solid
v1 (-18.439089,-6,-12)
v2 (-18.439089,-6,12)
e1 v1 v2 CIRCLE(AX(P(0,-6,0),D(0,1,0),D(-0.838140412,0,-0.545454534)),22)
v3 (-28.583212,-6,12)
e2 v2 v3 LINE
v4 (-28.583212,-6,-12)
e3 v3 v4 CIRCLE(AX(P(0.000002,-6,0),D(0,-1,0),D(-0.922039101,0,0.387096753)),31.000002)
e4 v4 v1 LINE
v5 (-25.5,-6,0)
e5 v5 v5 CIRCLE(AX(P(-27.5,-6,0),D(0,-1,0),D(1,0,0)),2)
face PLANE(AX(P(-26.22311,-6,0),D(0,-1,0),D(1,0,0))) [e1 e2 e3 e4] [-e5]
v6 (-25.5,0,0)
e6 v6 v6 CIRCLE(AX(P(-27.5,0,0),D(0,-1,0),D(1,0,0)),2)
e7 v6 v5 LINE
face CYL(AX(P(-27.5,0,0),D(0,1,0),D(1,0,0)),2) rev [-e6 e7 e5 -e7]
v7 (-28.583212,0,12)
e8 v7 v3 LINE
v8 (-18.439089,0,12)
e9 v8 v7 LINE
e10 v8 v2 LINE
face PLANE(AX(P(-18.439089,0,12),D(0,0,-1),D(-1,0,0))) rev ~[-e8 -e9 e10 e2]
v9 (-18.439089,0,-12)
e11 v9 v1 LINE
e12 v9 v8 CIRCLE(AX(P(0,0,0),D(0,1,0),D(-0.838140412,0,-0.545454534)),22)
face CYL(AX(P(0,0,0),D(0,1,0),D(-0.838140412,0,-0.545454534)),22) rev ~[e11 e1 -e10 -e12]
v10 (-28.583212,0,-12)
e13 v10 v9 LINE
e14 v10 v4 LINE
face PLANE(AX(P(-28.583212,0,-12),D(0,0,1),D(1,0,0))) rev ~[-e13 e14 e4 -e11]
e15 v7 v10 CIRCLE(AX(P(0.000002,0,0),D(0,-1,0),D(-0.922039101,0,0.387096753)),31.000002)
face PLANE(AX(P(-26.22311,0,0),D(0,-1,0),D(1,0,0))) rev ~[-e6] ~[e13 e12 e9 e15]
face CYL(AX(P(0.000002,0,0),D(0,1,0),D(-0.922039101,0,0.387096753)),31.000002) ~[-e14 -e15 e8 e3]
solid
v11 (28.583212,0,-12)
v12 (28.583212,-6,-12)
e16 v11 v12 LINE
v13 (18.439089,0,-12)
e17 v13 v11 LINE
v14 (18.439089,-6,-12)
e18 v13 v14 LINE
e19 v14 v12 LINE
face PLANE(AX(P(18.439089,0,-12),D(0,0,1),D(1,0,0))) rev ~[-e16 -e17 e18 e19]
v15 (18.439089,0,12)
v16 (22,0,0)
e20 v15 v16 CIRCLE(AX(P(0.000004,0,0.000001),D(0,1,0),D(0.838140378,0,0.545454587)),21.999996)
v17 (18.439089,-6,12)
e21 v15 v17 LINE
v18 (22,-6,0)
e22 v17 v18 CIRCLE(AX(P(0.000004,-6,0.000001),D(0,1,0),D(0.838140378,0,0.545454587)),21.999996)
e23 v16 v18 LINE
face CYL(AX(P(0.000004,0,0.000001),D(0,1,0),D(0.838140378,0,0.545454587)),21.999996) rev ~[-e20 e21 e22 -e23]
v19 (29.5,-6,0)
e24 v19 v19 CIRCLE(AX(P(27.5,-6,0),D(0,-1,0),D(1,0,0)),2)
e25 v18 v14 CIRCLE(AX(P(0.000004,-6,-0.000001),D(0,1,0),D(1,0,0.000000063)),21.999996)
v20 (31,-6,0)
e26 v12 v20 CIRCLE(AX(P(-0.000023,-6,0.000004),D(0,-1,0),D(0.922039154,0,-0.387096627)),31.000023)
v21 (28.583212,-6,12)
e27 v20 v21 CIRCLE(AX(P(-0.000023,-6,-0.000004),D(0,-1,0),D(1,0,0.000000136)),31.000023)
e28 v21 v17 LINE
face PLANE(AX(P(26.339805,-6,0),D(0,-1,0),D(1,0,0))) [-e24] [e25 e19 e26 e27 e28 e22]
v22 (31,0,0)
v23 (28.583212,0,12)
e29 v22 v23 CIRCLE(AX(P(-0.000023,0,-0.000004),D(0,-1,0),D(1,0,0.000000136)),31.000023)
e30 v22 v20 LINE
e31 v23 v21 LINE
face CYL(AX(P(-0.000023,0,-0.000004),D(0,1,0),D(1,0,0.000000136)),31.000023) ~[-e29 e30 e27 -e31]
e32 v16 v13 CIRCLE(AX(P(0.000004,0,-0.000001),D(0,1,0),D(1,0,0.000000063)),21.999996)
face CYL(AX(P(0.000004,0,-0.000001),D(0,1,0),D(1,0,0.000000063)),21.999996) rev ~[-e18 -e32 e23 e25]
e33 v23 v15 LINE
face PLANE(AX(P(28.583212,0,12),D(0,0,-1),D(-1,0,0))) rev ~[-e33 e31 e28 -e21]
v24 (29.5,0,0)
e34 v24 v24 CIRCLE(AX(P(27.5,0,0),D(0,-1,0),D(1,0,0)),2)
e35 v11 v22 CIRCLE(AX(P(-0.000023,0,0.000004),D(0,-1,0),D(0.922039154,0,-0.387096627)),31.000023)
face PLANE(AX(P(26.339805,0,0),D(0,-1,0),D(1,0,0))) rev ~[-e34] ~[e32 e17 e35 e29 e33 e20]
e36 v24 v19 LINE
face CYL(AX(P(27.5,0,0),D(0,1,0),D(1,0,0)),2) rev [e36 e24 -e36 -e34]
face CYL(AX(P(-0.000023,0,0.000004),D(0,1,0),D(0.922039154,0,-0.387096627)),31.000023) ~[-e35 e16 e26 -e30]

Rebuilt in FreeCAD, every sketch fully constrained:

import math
import FreeCAD as App
import Part
import Sketcher

V = App.Vector

doc = App.newDocument("Part")
params = doc.addObject("Spreadsheet::Sheet", "Params")
for row, (alias, value) in enumerate([
    ("sketch1_diameter", "4 mm"),
    ("sketch1_radius", "31.000002 mm"),
    ("sketch1_radius2", "22 mm"),
    ("pad1_length", "6 mm"),
], start=1):
    params.set(f"A{row}", alias)
    params.set(f"B{row}", "=" + value)
    params.setAlias(f"B{row}", alias)

body = doc.addObject("PartDesign::Body", "Body")
body.AllowCompound = True

# Sketch on XZ plane
sketch1 = body.newObject("Sketcher::SketchObject", "Sketch")
sketch1.AttachmentSupport = (doc.getObject("XZ_Plane"), [""])
sketch1.MapMode = "FlatFace"
sketch1.addGeometry(Part.ArcOfCircle(Part.Circle(V(0, 0, 0), V(0, 0, 1), 31), math.radians(157), math.radians(203)), False)
sketch1.addGeometry(Part.LineSegment(V(-28.6, -12, 0), V(-18.4, -12, 0)), False)
sketch1.addGeometry(Part.ArcOfCircle(Part.Circle(V(0, 0, 0), V(0, 0, 1), 22), math.radians(147), math.radians(213)), False)
sketch1.addGeometry(Part.LineSegment(V(-18.4, 12, 0), V(-28.6, 12, 0)), False)
sketch1.addGeometry(Part.Circle(V(-27.5, 0, 0), V(0, 0, 1), 2), False)
sketch1.addGeometry(Part.ArcOfCircle(Part.Circle(V(0, 0, 0), V(0, 0, 1), 31), math.radians(-23), math.radians(0)), False)
sketch1.addGeometry(Part.ArcOfCircle(Part.Circle(V(0, 0, 0), V(0, 0, 1), 31), math.radians(0), math.radians(23)), False)
sketch1.addGeometry(Part.LineSegment(V(28.6, 12, 0), V(18.4, 12, 0)), False)
sketch1.addGeometry(Part.ArcOfCircle(Part.Circle(V(0, 0, 0), V(0, 0, 1), 22), math.radians(0), math.radians(33)), False)
sketch1.addGeometry(Part.ArcOfCircle(Part.Circle(V(0, 0, 0), V(0, 0, 1), 22), math.radians(-33), math.radians(0)), False)
sketch1.addGeometry(Part.LineSegment(V(18.4, -12, 0), V(28.6, -12, 0)), False)
sketch1.addGeometry(Part.Circle(V(27.5, 0, 0), V(0, 0, 1), 2), False)
sketch1.addConstraint(Sketcher.Constraint("Coincident", 0, 2, 1, 1))
sketch1.addConstraint(Sketcher.Constraint("Coincident", 1, 2, 2, 2))
sketch1.addConstraint(Sketcher.Constraint("Coincident", 2, 1, 3, 1))
sketch1.addConstraint(Sketcher.Constraint("Coincident", 3, 2, 0, 1))
sketch1.addConstraint(Sketcher.Constraint("Tangent", 5, 2, 6, 1))
sketch1.addConstraint(Sketcher.Constraint("Coincident", 6, 2, 7, 1))
sketch1.addConstraint(Sketcher.Constraint("Coincident", 7, 2, 8, 2))
sketch1.addConstraint(Sketcher.Constraint("Tangent", 8, 1, 9, 2))
sketch1.addConstraint(Sketcher.Constraint("Coincident", 9, 1, 10, 1))
sketch1.addConstraint(Sketcher.Constraint("Coincident", 10, 2, 5, 1))
sketch1.addConstraint(Sketcher.Constraint("Horizontal", 1))
sketch1.addConstraint(Sketcher.Constraint("Horizontal", 3))
sketch1.addConstraint(Sketcher.Constraint("Horizontal", 7))
sketch1.addConstraint(Sketcher.Constraint("Horizontal", 10))
sketch1.addConstraint(Sketcher.Constraint("Coincident", 0, 3, -1, 1))
sketch1.addConstraint(Sketcher.Constraint("Coincident", 2, 3, -1, 1))
sketch1.addConstraint(Sketcher.Constraint("Coincident", 8, 3, -1, 1))
sketch1.addConstraint(Sketcher.Constraint("Equal", 5, 6))
sketch1.addConstraint(Sketcher.Constraint("Equal", 8, 9))
sketch1.addConstraint(Sketcher.Constraint("Equal", 4, 11))
sketch1.addConstraint(Sketcher.Constraint("Symmetric", 4, 3, 11, 3, -1, 1))
sketch1.addConstraint(Sketcher.Constraint("Symmetric", 0, 2, 6, 2, -1, 1))
sketch1.addConstraint(Sketcher.Constraint("Symmetric", 2, 1, 9, 1, -1, 1))
sketch1.addConstraint(Sketcher.Constraint("Symmetric", 0, 2, 10, 2, -2))
sketch1.addConstraint(Sketcher.Constraint("PointOnObject", 4, 3, -1))
sketch1.addConstraint(Sketcher.Constraint("PointOnObject", 5, 2, -1))
sketch1.addConstraint(Sketcher.Constraint("PointOnObject", 8, 1, -1))
sketch1.addConstraint(Sketcher.Constraint("Diameter", 4, 4.0))
sketch1.addConstraint(Sketcher.Constraint("Radius", 0, 31.000002))
sketch1.addConstraint(Sketcher.Constraint("Radius", 2, 22.0))
sketch1.addConstraint(Sketcher.Constraint("DistanceY", 0, 2, -1, 1, 12.0))
sketch1.addConstraint(Sketcher.Constraint("DistanceX", -1, 1, 5, 2, 31.0))
sketch1.addConstraint(Sketcher.Constraint("DistanceX", 4, 3, -1, 1, 27.5))
sketch1.setExpression("Constraints[27]", "Params.sketch1_diameter")
sketch1.setExpression("Constraints[28]", "Params.sketch1_radius")
sketch1.setExpression("Constraints[29]", "Params.sketch1_radius2")
pad1 = body.newObject("PartDesign::Pad", "Pad")
pad1.Profile = sketch1
pad1.setExpression("Length", "Params.pad1_length")

doc.recompute()
